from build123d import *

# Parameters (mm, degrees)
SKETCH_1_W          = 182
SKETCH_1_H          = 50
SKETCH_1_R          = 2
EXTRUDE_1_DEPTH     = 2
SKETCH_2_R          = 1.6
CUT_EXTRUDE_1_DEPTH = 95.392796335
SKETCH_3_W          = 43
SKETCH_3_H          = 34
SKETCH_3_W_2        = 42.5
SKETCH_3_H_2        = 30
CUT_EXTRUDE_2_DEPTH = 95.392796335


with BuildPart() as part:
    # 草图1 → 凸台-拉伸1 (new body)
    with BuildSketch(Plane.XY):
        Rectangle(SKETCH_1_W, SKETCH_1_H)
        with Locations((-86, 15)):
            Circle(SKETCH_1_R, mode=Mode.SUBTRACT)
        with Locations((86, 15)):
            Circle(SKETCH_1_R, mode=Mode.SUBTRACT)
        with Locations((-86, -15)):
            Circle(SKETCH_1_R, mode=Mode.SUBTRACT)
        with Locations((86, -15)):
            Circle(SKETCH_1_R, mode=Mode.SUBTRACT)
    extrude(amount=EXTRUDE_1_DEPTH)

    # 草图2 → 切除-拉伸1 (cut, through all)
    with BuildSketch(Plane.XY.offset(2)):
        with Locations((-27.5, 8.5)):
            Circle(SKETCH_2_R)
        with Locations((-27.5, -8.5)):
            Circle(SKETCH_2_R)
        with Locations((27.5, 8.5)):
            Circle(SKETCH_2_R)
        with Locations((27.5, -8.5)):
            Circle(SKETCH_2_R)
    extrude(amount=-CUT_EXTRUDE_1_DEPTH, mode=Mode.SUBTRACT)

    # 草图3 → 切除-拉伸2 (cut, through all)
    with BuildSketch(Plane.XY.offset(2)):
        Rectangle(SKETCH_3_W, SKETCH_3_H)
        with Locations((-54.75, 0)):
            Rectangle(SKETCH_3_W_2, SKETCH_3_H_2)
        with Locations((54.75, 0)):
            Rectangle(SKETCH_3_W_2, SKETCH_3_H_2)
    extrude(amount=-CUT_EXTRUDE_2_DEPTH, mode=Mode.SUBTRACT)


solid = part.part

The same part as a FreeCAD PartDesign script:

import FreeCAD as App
import Part
import Sketcher


def add_polygon(sketch, points):
    """Adds a closed chain of lines whose ends are joined by coincident constraints."""
    first, n = sketch.GeometryCount, len(points)
    for a, b in zip(points, points[1:] + points[:1]):
        sketch.addGeometry(Part.LineSegment(App.Vector(*a, 0), App.Vector(*b, 0)), False)
    for i in range(n):
        sketch.addConstraint(Sketcher.Constraint("Coincident", first + i, 2, first + (i + 1) % n, 1))

doc = App.newDocument("Part")
body = doc.addObject("PartDesign::Body", "Body")

# Sketch on XY plane
sketch1 = doc.addObject("Sketcher::SketchObject", "Sketch")
body.addObject(sketch1)
sketch1.AttachmentSupport = (doc.XY_Plane, [""])
sketch1.MapMode = "FlatFace"
add_polygon(sketch1, [(-91, 25), (-91, -25), (91, -25), (91, 25)])  # lines 0-3
sketch1.addGeometry(Part.Circle(App.Vector(-86, -15, 0), App.Vector(0, 0, 1), 2), False)  # 4
sketch1.addGeometry(Part.Circle(App.Vector(86, -15, 0), App.Vector(0, 0, 1), 2), False)  # 5
sketch1.addGeometry(Part.Circle(App.Vector(-86, 15, 0), App.Vector(0, 0, 1), 2), False)  # 6
sketch1.addGeometry(Part.Circle(App.Vector(86, 15, 0), App.Vector(0, 0, 1), 2), False)  # 7
sketch1.addConstraint(Sketcher.Constraint("Vertical", 0))
sketch1.addConstraint(Sketcher.Constraint("Horizontal", 1))
sketch1.addConstraint(Sketcher.Constraint("Vertical", 2))
sketch1.addConstraint(Sketcher.Constraint("Horizontal", 3))
sketch1.addConstraint(Sketcher.Constraint("Equal", 4, 5))
sketch1.addConstraint(Sketcher.Constraint("Equal", 5, 6))
sketch1.addConstraint(Sketcher.Constraint("Equal", 6, 7))
sketch1.addConstraint(Sketcher.Constraint("Symmetric", 5, 3, 6, 3, -1, 1))
sketch1.addConstraint(Sketcher.Constraint("Symmetric", 4, 3, 7, 3, -1, 1))
sketch1.addConstraint(Sketcher.Constraint("Symmetric", 0, 2, 2, 2, -1, 1))
sketch1.addConstraint(Sketcher.Constraint("Symmetric", 4, 3, 5, 3, -2))
sketch1.addConstraint(Sketcher.Constraint("Diameter", 4, 4.0))
sketch1.addConstraint(Sketcher.Constraint("DistanceX", 1, 1, 1, 2, 182.0))
sketch1.addConstraint(Sketcher.Constraint("DistanceY", 0, 2, 0, 1, 50.0))
sketch1.addConstraint(Sketcher.Constraint("DistanceX", 4, 3, -1, 1, 86.0))
sketch1.addConstraint(Sketcher.Constraint("DistanceY", 4, 3, -1, 1, 15.0))
pad1 = doc.addObject("PartDesign::Pad", "Pad")
body.addObject(pad1)
pad1.Profile = sketch1
pad1.Length = 2

# Sketch on XY plane
sketch2 = doc.addObject("Sketcher::SketchObject", "Sketch001")
body.addObject(sketch2)
sketch2.AttachmentSupport = (doc.XY_Plane, [""])
sketch2.MapMode = "FlatFace"
sketch2.AttachmentOffset = App.Placement(App.Vector(0, 0, 2), App.Rotation())
sketch2.addGeometry(Part.Circle(App.Vector(-27.5, 8.5, 0), App.Vector(0, 0, 1), 1.6), False)
sketch2.addGeometry(Part.Circle(App.Vector(-27.5, -8.5, 0), App.Vector(0, 0, 1), 1.6), False)
sketch2.addGeometry(Part.Circle(App.Vector(27.5, 8.5, 0), App.Vector(0, 0, 1), 1.6), False)
sketch2.addGeometry(Part.Circle(App.Vector(27.5, -8.5, 0), App.Vector(0, 0, 1), 1.6), False)
sketch2.addConstraint(Sketcher.Constraint("Equal", 0, 1))
sketch2.addConstraint(Sketcher.Constraint("Equal", 1, 2))
sketch2.addConstraint(Sketcher.Constraint("Equal", 2, 3))
sketch2.addConstraint(Sketcher.Constraint("Symmetric", 1, 3, 2, 3, -1, 1))
sketch2.addConstraint(Sketcher.Constraint("Symmetric", 0, 3, 3, 3, -1, 1))
sketch2.addConstraint(Sketcher.Constraint("Symmetric", 0, 3, 2, 3, -2))
sketch2.addConstraint(Sketcher.Constraint("Diameter", 0, 3.2))
sketch2.addConstraint(Sketcher.Constraint("DistanceY", 1, 3, 0, 3, 17.0))
sketch2.addConstraint(Sketcher.Constraint("DistanceX", 0, 3, 2, 3, 55.0))
pocket1 = doc.addObject("PartDesign::Pocket", "Pocket")
body.addObject(pocket1)
pocket1.Profile = sketch2
pocket1.Type = "ThroughAll"

# Sketch on XY plane
sketch3 = doc.addObject("Sketcher::SketchObject", "Sketch002")
body.addObject(sketch3)
sketch3.AttachmentSupport = (doc.XY_Plane, [""])
sketch3.MapMode = "FlatFace"
sketch3.AttachmentOffset = App.Placement(App.Vector(0, 0, 2), App.Rotation())
add_polygon(sketch3, [(-21.5, 17), (-21.5, -17), (21.5, -17), (21.5, 17)])  # lines 0-3
add_polygon(sketch3, [(-76, 15), (-76, -15), (-33.5, -15), (-33.5, 15)])  # lines 4-7
add_polygon(sketch3, [(33.5, 15), (33.5, -15), (76, -15), (76, 15)])  # lines 8-11
sketch3.addConstraint(Sketcher.Constraint("Vertical", 0))
sketch3.addConstraint(Sketcher.Constraint("Horizontal", 1))
sketch3.addConstraint(Sketcher.Constraint("Vertical", 2))
sketch3.addConstraint(Sketcher.Constraint("Horizontal", 3))
sketch3.addConstraint(Sketcher.Constraint("Vertical", 4))
sketch3.addConstraint(Sketcher.Constraint("Horizontal", 5))
sketch3.addConstraint(Sketcher.Constraint("Vertical", 6))
sketch3.addConstraint(Sketcher.Constraint("Horizontal", 7))
sketch3.addConstraint(Sketcher.Constraint("Vertical", 8))
sketch3.addConstraint(Sketcher.Constraint("Horizontal", 9))
sketch3.addConstraint(Sketcher.Constraint("Vertical", 10))
sketch3.addConstraint(Sketcher.Constraint("Horizontal", 11))
sketch3.addConstraint(Sketcher.Constraint("Symmetric", 0, 2, 2, 2, -1, 1))
sketch3.addConstraint(Sketcher.Constraint("Symmetric", 6, 2, 8, 2, -1, 1))
sketch3.addConstraint(Sketcher.Constraint("Symmetric", 4, 2, 10, 2, -1, 1))
sketch3.addConstraint(Sketcher.Constraint("Horizontal", 5, 2, 8, 2))
sketch3.addConstraint(Sketcher.Constraint("DistanceX", 1, 1, 1, 2, 43.0))
sketch3.addConstraint(Sketcher.Constraint("DistanceY", 0, 2, 0, 1, 34.0))
sketch3.addConstraint(Sketcher.Constraint("DistanceY", 4, 2, 4, 1, 30.0))
sketch3.addConstraint(Sketcher.Constraint("DistanceX", 5, 1, 5, 2, 42.5))
sketch3.addConstraint(Sketcher.Constraint("DistanceX", 4, 2, -1, 1, 76.0))
pocket2 = doc.addObject("PartDesign::Pocket", "Pocket001")
body.addObject(pocket2)
pocket2.Profile = sketch3
pocket2.Type = "ThroughAll"

doc.recompute()
